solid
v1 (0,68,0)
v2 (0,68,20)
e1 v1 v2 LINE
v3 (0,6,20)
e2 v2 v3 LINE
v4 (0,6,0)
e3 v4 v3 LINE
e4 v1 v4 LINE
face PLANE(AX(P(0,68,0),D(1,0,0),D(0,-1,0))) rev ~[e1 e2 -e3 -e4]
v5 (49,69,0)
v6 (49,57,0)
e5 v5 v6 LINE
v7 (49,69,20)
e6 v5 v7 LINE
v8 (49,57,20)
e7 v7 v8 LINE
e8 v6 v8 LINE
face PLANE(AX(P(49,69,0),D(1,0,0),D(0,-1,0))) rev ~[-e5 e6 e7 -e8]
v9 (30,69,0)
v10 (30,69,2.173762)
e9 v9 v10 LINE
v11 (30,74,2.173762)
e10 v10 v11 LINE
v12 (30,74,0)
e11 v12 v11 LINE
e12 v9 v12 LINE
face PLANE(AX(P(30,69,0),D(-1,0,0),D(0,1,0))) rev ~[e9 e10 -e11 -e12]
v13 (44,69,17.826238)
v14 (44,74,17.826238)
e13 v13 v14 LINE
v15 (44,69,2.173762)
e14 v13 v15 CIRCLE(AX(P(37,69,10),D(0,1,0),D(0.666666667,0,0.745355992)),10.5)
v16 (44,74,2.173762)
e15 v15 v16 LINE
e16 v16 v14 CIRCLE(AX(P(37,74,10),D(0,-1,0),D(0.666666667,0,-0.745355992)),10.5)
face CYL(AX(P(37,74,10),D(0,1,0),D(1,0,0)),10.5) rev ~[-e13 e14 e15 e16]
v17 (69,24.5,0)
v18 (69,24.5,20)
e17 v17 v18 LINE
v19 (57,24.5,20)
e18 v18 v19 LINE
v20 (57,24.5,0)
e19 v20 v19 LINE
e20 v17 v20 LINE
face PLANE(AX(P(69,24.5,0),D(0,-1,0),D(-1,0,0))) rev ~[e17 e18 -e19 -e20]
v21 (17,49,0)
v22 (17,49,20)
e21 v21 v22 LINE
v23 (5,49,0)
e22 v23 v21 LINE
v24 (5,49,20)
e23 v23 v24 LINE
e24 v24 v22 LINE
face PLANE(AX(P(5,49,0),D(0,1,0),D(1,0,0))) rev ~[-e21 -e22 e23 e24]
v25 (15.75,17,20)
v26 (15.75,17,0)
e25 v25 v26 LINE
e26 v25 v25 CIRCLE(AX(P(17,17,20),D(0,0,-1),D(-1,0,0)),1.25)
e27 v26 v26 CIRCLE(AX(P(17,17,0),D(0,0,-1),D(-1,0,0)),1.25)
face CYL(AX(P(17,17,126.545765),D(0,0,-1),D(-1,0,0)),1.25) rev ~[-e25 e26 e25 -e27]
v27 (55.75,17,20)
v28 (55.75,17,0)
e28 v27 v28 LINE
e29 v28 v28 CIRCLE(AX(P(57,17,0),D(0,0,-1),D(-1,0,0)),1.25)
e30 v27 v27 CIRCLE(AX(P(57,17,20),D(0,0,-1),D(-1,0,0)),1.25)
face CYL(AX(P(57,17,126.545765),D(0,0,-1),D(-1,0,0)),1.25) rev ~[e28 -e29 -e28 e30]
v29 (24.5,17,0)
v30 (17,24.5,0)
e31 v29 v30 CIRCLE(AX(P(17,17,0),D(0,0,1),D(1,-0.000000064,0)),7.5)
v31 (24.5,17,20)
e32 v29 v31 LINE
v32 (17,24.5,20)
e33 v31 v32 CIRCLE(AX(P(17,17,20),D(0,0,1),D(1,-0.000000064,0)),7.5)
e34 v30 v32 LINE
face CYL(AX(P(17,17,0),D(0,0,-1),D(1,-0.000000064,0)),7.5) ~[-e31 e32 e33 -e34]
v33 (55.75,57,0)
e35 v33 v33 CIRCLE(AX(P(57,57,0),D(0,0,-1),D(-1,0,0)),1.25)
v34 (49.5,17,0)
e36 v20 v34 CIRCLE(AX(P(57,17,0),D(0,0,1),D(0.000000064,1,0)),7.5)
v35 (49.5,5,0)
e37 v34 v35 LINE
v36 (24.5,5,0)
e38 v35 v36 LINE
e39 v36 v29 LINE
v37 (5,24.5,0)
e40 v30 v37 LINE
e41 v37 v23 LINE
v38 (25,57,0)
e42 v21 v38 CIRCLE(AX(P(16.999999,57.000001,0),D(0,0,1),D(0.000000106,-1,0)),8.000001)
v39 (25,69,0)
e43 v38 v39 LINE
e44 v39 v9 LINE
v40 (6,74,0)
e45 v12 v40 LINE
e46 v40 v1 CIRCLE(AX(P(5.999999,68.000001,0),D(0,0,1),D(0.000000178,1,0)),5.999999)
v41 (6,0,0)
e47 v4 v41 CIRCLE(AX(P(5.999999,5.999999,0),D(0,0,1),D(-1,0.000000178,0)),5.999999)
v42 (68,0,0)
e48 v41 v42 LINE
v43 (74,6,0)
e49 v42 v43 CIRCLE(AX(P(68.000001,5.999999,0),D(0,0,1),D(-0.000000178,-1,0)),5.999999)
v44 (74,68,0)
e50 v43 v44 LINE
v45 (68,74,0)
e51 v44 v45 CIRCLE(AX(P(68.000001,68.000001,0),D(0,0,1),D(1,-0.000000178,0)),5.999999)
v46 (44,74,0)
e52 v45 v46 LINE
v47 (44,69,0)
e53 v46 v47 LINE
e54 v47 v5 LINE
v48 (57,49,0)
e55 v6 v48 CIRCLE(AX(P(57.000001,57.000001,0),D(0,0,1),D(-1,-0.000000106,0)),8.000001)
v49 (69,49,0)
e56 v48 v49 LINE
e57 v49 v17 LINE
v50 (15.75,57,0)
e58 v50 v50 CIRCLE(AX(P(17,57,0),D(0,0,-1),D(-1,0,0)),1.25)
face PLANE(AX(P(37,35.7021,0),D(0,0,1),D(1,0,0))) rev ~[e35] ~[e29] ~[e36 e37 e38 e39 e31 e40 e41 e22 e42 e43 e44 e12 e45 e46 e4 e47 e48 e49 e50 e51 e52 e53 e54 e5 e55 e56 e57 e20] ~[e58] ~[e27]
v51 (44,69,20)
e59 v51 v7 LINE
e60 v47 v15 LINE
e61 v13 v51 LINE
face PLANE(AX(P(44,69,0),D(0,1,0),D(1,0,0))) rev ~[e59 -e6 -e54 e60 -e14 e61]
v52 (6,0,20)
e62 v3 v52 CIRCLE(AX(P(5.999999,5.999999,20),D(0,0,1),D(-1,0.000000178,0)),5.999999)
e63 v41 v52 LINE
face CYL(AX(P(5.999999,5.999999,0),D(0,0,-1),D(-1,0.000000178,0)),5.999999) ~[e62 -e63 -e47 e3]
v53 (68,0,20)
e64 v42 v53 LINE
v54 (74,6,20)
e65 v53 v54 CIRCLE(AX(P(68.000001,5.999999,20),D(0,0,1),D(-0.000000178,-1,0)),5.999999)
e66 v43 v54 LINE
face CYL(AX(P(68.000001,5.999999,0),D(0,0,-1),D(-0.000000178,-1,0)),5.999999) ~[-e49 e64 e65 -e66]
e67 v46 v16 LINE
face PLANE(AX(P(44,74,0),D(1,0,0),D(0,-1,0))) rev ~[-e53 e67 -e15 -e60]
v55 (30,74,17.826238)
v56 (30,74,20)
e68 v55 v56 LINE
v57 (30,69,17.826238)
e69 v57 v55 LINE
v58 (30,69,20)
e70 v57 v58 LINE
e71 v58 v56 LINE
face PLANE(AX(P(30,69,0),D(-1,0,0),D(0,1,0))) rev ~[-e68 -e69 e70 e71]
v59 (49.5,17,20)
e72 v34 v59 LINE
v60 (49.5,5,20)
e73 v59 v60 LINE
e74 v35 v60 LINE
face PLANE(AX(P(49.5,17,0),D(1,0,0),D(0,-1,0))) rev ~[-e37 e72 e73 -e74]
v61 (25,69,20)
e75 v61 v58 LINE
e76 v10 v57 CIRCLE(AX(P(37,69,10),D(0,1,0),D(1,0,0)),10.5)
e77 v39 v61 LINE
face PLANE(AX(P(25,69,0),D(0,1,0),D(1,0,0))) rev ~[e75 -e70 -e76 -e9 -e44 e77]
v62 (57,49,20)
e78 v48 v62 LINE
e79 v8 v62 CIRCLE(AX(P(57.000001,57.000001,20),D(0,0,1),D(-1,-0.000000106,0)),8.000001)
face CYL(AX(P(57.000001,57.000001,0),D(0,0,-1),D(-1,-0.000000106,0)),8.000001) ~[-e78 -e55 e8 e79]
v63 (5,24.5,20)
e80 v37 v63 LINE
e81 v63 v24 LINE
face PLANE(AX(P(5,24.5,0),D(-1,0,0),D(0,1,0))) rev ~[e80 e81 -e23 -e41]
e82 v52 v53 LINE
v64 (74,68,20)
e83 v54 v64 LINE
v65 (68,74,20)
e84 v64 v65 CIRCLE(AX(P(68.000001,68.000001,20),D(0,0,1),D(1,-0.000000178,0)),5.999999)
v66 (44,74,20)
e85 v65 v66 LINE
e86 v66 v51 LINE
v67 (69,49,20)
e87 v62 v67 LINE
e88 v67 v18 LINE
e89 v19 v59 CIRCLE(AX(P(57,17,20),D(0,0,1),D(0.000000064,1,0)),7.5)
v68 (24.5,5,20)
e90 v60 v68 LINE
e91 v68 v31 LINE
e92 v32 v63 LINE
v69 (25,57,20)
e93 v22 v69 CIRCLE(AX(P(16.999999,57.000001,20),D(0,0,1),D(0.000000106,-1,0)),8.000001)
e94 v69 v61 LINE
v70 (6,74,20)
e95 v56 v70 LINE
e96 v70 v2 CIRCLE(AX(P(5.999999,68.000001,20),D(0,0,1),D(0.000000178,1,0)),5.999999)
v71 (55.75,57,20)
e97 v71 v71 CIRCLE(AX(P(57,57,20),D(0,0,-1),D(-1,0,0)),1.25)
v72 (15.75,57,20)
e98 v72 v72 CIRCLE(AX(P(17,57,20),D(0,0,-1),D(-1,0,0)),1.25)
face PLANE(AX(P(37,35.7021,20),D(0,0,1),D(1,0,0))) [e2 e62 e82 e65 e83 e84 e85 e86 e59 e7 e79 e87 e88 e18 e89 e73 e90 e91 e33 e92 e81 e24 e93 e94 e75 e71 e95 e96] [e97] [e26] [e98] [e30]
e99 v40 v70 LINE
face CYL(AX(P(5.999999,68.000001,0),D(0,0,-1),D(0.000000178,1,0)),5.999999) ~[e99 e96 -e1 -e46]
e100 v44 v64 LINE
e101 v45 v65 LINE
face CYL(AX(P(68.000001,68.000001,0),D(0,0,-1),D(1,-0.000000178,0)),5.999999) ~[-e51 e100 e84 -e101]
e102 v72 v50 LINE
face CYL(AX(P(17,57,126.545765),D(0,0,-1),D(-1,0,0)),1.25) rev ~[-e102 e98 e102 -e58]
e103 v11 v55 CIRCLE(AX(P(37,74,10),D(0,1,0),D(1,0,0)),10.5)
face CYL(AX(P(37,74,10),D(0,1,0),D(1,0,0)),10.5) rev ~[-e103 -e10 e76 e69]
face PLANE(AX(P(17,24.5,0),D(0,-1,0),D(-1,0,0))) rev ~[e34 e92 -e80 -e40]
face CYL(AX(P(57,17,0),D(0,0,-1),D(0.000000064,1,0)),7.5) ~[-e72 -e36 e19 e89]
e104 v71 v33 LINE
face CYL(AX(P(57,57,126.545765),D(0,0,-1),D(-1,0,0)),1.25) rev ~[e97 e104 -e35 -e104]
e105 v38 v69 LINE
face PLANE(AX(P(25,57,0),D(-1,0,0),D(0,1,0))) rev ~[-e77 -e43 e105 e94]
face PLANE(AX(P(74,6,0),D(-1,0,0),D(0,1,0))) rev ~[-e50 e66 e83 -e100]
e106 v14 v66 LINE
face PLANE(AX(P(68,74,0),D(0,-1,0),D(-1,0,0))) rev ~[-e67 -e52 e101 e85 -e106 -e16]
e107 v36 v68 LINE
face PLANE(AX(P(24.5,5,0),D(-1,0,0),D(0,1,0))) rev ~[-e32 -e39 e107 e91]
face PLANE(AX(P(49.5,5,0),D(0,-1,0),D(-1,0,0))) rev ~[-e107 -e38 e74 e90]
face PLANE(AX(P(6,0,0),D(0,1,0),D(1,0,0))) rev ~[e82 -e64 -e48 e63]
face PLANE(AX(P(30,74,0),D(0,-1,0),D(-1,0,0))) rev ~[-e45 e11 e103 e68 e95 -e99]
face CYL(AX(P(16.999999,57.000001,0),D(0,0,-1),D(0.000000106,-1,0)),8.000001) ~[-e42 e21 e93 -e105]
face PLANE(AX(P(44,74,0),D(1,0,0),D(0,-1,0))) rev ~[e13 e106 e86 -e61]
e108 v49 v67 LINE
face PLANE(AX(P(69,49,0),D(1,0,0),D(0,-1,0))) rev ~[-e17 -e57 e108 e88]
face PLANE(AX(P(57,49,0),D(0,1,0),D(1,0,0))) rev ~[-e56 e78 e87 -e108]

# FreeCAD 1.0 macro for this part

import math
import FreeCAD as App
import Part
import Sketcher

V = App.Vector

doc = App.newDocument("Part")
body = doc.addObject("PartDesign::Body", "Body")

sketch1 = body.newObject("Sketcher::SketchObject", "Sketch")
sketch1.AttachmentSupport = (doc.getObject("XY_Plane"), [""])
sketch1.MapMode = "FlatFace"
sketch1.addGeometry(Part.LineSegment(V(0, 68, 0), V(0, 6, 0)), False)
sketch1.addGeometry(Part.ArcOfCircle(Part.Circle(V(6, 6, 0), V(0, 0, 1), 6), math.radians(180), math.radians(270)), False)
sketch1.addGeometry(Part.LineSegment(V(6, 0, 0), V(68, 0, 0)), False)
sketch1.addGeometry(Part.ArcOfCircle(Part.Circle(V(68, 6, 0), V(0, 0, 1), 6), math.radians(-90), math.radians(0)), False)
sketch1.addGeometry(Part.LineSegment(V(74, 6, 0), V(74, 68, 0)), False)
sketch1.addGeometry(Part.ArcOfCircle(Part.Circle(V(68, 68, 0), V(0, 0, 1), 6), math.radians(0), math.radians(90)), False)
sketch1.addGeometry(Part.LineSegment(V(68, 74, 0), V(44, 74, 0)), False)
sketch1.addGeometry(Part.LineSegment(V(44, 74, 0), V(44, 69, 0)), False)
sketch1.addGeometry(Part.LineSegment(V(44, 69, 0), V(49, 69, 0)), False)
sketch1.addGeometry(Part.LineSegment(V(49, 69, 0), V(49, 57, 0)), False)
sketch1.addGeometry(Part.ArcOfCircle(Part.Circle(V(57, 57, 0), V(0, 0, 1), 8), math.radians(-180), math.radians(-90)), False)
sketch1.addGeometry(Part.LineSegment(V(57, 49, 0), V(69, 49, 0)), False)
sketch1.addGeometry(Part.LineSegment(V(69, 49, 0), V(69, 24, 0)), False)
sketch1.addGeometry(Part.LineSegment(V(69, 24, 0), V(57, 24, 0)), False)
sketch1.addGeometry(Part.ArcOfCircle(Part.Circle(V(57, 17, 0), V(0, 0, 1), 7), math.radians(90), math.radians(180)), False)
sketch1.addGeometry(Part.LineSegment(V(50, 17, 0), V(50, 5, 0)), False)
sketch1.addGeometry(Part.LineSegment(V(50, 5, 0), V(24, 5, 0)), False)
sketch1.addGeometry(Part.LineSegment(V(24, 5, 0), V(24, 17, 0)), False)
sketch1.addGeometry(Part.ArcOfCircle(Part.Circle(V(17, 17, 0), V(0, 0, 1), 7), math.radians(0), math.radians(90)), False)
sketch1.addGeometry(Part.LineSegment(V(17, 24, 0), V(5, 24, 0)), False)
sketch1.addGeometry(Part.LineSegment(V(5, 24, 0), V(5, 49, 0)), False)
sketch1.addGeometry(Part.LineSegment(V(5, 49, 0), V(17, 49, 0)), False)
sketch1.addGeometry(Part.ArcOfCircle(Part.Circle(V(17, 57, 0), V(0, 0, 1), 8), math.radians(-90), math.radians(0)), False)
sketch1.addGeometry(Part.LineSegment(V(25, 57, 0), V(25, 69, 0)), False)
sketch1.addGeometry(Part.LineSegment(V(25, 69, 0), V(30, 69, 0)), False)
sketch1.addGeometry(Part.LineSegment(V(30, 69, 0), V(30, 74, 0)), False)
sketch1.addGeometry(Part.LineSegment(V(30, 74, 0), V(6, 74, 0)), False)
sketch1.addGeometry(Part.ArcOfCircle(Part.Circle(V(6, 68, 0), V(0, 0, 1), 6), math.radians(90), math.radians(180)), False)
sketch1.addConstraint(Sketcher.Constraint("Tangent", 0, 2, 1, 1))
sketch1.addConstraint(Sketcher.Constraint("Tangent", 1, 2, 2, 1))
sketch1.addConstraint(Sketcher.Constraint("Tangent", 2, 2, 3, 1))
sketch1.addConstraint(Sketcher.Constraint("Tangent", 3, 2, 4, 1))
sketch1.addConstraint(Sketcher.Constraint("Tangent", 4, 2, 5, 1))
sketch1.addConstraint(Sketcher.Constraint("Tangent", 5, 2, 6, 1))
sketch1.addConstraint(Sketcher.Constraint("Coincident", 6, 2, 7, 1))
sketch1.addConstraint(Sketcher.Constraint("Coincident", 7, 2, 8, 1))
sketch1.addConstraint(Sketcher.Constraint("Coincident", 8, 2, 9, 1))
sketch1.addConstraint(Sketcher.Constraint("Tangent", 9, 2, 10, 1))
sketch1.addConstraint(Sketcher.Constraint("Tangent", 10, 2, 11, 1))
sketch1.addConstraint(Sketcher.Constraint("Coincident", 11, 2, 12, 1))
sketch1.addConstraint(Sketcher.Constraint("Coincident", 12, 2, 13, 1))
sketch1.addConstraint(Sketcher.Constraint("Tangent", 13, 2, 14, 1))
sketch1.addConstraint(Sketcher.Constraint("Tangent", 14, 2, 15, 1))
sketch1.addConstraint(Sketcher.Constraint("Coincident", 15, 2, 16, 1))
sketch1.addConstraint(Sketcher.Constraint("Coincident", 16, 2, 17, 1))
sketch1.addConstraint(Sketcher.Constraint("Tangent", 17, 2, 18, 1))
sketch1.addConstraint(Sketcher.Constraint("Tangent", 18, 2, 19, 1))
sketch1.addConstraint(Sketcher.Constraint("Coincident", 19, 2, 20, 1))
sketch1.addConstraint(Sketcher.Constraint("Coincident", 20, 2, 21, 1))
sketch1.addConstraint(Sketcher.Constraint("Tangent", 21, 2, 22, 1))
sketch1.addConstraint(Sketcher.Constraint("Tangent", 22, 2, 23, 1))
sketch1.addConstraint(Sketcher.Constraint("Coincident", 23, 2, 24, 1))
sketch1.addConstraint(Sketcher.Constraint("Coincident", 24, 2, 25, 1))
sketch1.addConstraint(Sketcher.Constraint("Coincident", 25, 2, 26, 1))
sketch1.addConstraint(Sketcher.Constraint("Tangent", 26, 2, 27, 1))
sketch1.addConstraint(Sketcher.Constraint("Tangent", 27, 2, 0, 1))
sketch1.addConstraint(Sketcher.Constraint("Vertical", 0))
sketch1.addConstraint(Sketcher.Constraint("Horizontal", 2))
sketch1.addConstraint(Sketcher.Constraint("Vertical", 4))
sketch1.addConstraint(Sketcher.Constraint("Horizontal", 6))
sketch1.addConstraint(Sketcher.Constraint("Vertical", 7))
sketch1.addConstraint(Sketcher.Constraint("Horizontal", 8))
sketch1.addConstraint(Sketcher.Constraint("Vertical", 9))
sketch1.addConstraint(Sketcher.Constraint("Horizontal", 11))
sketch1.addConstraint(Sketcher.Constraint("Vertical", 12))
sketch1.addConstraint(Sketcher.Constraint("Horizontal", 13))
sketch1.addConstraint(Sketcher.Constraint("Vertical", 15))
sketch1.addConstraint(Sketcher.Constraint("Horizontal", 16))
sketch1.addConstraint(Sketcher.Constraint("Vertical", 17))
sketch1.addConstraint(Sketcher.Constraint("Horizontal", 19))
sketch1.addConstraint(Sketcher.Constraint("Vertical", 20))
sketch1.addConstraint(Sketcher.Constraint("Horizontal", 21))
sketch1.addConstraint(Sketcher.Constraint("Vertical", 23))
sketch1.addConstraint(Sketcher.Constraint("Horizontal", 24))
sketch1.addConstraint(Sketcher.Constraint("Vertical", 25))
sketch1.addConstraint(Sketcher.Constraint("Horizontal", 26))
sketch1.addConstraint(Sketcher.Constraint("Equal", 1, 3))
sketch1.addConstraint(Sketcher.Constraint("Equal", 3, 5))
sketch1.addConstraint(Sketcher.Constraint("Equal", 14, 18))
sketch1.addConstraint(Sketcher.Constraint("Equal", 10, 22))
sketch1.addConstraint(Sketcher.Constraint("Equal", 5, 27))
sketch1.addConstraint(Sketcher.Constraint("PointOnObject", 0, 2, -2))
sketch1.addConstraint(Sketcher.Constraint("PointOnObject", 1, 2, -1))
sketch1.addConstraint(Sketcher.Constraint("Horizontal", 14, 3, 18, 3))
sketch1.addConstraint(Sketcher.Constraint("Horizontal", 10, 3, 22, 3))
sketch1.addConstraint(Sketcher.Constraint("Horizontal", 5, 3, 27, 3))
sketch1.addConstraint(Sketcher.Constraint("Horizontal", 8, 2, 23, 2))
sketch1.addConstraint(Sketcher.Constraint("Vertical", 10, 3, 14, 3))
sketch1.addConstraint(Sketcher.Constraint("Vertical", 18, 3, 22, 3))
sketch1.addConstraint(Sketcher.Constraint("Equal", 13, 19))
sketch1.addConstraint(Sketcher.Constraint("Equal", 8, 24))
sketch1.addConstraint(Sketcher.Constraint("Equal", 6, 26))
sketch1.addConstraint(Sketcher.Constraint("Equal", 2, 0))
sketch1.addConstraint(Sketcher.Constraint("Equal", 24, 7))
sketch1.addConstraint(Sketcher.Constraint("Equal", 21, 9))
sketch1.addConstraint(Sketcher.Constraint("Equal", 9, 15))
sketch1.addConstraint(Sketcher.Constraint("Radius", 1, 5.999999))
sketch1.addConstraint(Sketcher.Constraint("Radius", 10, 8.000001))
sketch1.addConstraint(Sketcher.Constraint("Radius", 14, 7.5))
sketch1.addConstraint(Sketcher.Constraint("DistanceX", 2, 1, 2, 2, 62.0))
sketch1.addConstraint(Sketcher.Constraint("DistanceX", 6, 2, 6, 1, 24.0))
sketch1.addConstraint(Sketcher.Constraint("DistanceX", 8, 1, 8, 2, 5.0))
sketch1.addConstraint(Sketcher.Constraint("DistanceX", 11, 1, 11, 2, 12.0))
sketch1.addConstraint(Sketcher.Constraint("DistanceY", 12, 2, 12, 1, 24.5))
pad1 = body.newObject("PartDesign::Pad", "Pad")
pad1.Profile = sketch1
pad1.Length = 20
body2 = doc.addObject("PartDesign::Body", "Body001")

sketch2 = body2.newObject("Sketcher::SketchObject", "Sketch001")
sketch2.AttachmentSupport = (doc.getObject("XZ_Plane001"), [""])
sketch2.MapMode = "FlatFace"
sketch2.AttachmentOffset = App.Placement(V(0, 0, -74), App.Rotation())
sketch2.addGeometry(Part.Circle(V(37, 10, 0), V(0, 0, 1), 10), False)
sketch2.addConstraint(Sketcher.Constraint("Diameter", 0, 21.0))
sketch2.addConstraint(Sketcher.Constraint("DistanceX", -1, 1, 0, 3, 37.0))
sketch2.addConstraint(Sketcher.Constraint("DistanceY", -1, 1, 0, 3, 10.0))
pad2 = body2.newObject("PartDesign::Pad", "Pad001")
pad2.Profile = sketch2
pad2.Length = 25
doc.recompute()

boolean = body.newObject("PartDesign::Boolean", "Boolean")
boolean.Type = "Cut"
boolean.addObjects([body2])

sketch3 = body.newObject("Sketcher::SketchObject", "Sketch002")
sketch3.AttachmentSupport = (doc.getObject("XY_Plane"), [""])
sketch3.MapMode = "FlatFace"
sketch3.AttachmentOffset = App.Placement(V(0, 0, 20), App.Rotation())
sketch3.addGeometry(Part.Circle(V(17, 57, 0), V(0, 0, 1), 1.2), False)
sketch3.addGeometry(Part.Circle(V(57, 57, 0), V(0, 0, 1), 1.2), False)
sketch3.addGeometry(Part.Circle(V(57, 17, 0), V(0, 0, 1), 1.2), False)
sketch3.addGeometry(Part.Circle(V(17, 17, 0), V(0, 0, 1), 1.2), False)
sketch3.addConstraint(Sketcher.Constraint("Equal", 0, 1))
sketch3.addConstraint(Sketcher.Constraint("Equal", 1, 2))
sketch3.addConstraint(Sketcher.Constraint("Equal", 2, 3))
sketch3.addConstraint(Sketcher.Constraint("Horizontal", 0, 3, 1, 3))
sketch3.addConstraint(Sketcher.Constraint("Horizontal", 2, 3, 3, 3))
sketch3.addConstraint(Sketcher.Constraint("Vertical", 1, 3, 2, 3))
sketch3.addConstraint(Sketcher.Constraint("Vertical", 0, 3, 3, 3))
sketch3.addConstraint(Sketcher.Constraint("Diameter", 0, 2.5))
sketch3.addConstraint(Sketcher.Constraint("DistanceX", -1, 1, 0, 3, 17.0))
sketch3.addConstraint(Sketcher.Constraint("DistanceY", -1, 1, 0, 3, 57.0))
sketch3.addConstraint(Sketcher.Constraint("DistanceX", -1, 1, 1, 3, 57.0))
sketch3.addConstraint(Sketcher.Constraint("DistanceY", -1, 1, 2, 3, 17.0))
doc.recompute()
hole = body.newObject("PartDesign::Hole", "Hole")
hole.Profile = sketch3
hole.ThreadType = "None"
hole.Diameter = 2.5
hole.DepthType = "ThroughAll"

doc.recompute()
